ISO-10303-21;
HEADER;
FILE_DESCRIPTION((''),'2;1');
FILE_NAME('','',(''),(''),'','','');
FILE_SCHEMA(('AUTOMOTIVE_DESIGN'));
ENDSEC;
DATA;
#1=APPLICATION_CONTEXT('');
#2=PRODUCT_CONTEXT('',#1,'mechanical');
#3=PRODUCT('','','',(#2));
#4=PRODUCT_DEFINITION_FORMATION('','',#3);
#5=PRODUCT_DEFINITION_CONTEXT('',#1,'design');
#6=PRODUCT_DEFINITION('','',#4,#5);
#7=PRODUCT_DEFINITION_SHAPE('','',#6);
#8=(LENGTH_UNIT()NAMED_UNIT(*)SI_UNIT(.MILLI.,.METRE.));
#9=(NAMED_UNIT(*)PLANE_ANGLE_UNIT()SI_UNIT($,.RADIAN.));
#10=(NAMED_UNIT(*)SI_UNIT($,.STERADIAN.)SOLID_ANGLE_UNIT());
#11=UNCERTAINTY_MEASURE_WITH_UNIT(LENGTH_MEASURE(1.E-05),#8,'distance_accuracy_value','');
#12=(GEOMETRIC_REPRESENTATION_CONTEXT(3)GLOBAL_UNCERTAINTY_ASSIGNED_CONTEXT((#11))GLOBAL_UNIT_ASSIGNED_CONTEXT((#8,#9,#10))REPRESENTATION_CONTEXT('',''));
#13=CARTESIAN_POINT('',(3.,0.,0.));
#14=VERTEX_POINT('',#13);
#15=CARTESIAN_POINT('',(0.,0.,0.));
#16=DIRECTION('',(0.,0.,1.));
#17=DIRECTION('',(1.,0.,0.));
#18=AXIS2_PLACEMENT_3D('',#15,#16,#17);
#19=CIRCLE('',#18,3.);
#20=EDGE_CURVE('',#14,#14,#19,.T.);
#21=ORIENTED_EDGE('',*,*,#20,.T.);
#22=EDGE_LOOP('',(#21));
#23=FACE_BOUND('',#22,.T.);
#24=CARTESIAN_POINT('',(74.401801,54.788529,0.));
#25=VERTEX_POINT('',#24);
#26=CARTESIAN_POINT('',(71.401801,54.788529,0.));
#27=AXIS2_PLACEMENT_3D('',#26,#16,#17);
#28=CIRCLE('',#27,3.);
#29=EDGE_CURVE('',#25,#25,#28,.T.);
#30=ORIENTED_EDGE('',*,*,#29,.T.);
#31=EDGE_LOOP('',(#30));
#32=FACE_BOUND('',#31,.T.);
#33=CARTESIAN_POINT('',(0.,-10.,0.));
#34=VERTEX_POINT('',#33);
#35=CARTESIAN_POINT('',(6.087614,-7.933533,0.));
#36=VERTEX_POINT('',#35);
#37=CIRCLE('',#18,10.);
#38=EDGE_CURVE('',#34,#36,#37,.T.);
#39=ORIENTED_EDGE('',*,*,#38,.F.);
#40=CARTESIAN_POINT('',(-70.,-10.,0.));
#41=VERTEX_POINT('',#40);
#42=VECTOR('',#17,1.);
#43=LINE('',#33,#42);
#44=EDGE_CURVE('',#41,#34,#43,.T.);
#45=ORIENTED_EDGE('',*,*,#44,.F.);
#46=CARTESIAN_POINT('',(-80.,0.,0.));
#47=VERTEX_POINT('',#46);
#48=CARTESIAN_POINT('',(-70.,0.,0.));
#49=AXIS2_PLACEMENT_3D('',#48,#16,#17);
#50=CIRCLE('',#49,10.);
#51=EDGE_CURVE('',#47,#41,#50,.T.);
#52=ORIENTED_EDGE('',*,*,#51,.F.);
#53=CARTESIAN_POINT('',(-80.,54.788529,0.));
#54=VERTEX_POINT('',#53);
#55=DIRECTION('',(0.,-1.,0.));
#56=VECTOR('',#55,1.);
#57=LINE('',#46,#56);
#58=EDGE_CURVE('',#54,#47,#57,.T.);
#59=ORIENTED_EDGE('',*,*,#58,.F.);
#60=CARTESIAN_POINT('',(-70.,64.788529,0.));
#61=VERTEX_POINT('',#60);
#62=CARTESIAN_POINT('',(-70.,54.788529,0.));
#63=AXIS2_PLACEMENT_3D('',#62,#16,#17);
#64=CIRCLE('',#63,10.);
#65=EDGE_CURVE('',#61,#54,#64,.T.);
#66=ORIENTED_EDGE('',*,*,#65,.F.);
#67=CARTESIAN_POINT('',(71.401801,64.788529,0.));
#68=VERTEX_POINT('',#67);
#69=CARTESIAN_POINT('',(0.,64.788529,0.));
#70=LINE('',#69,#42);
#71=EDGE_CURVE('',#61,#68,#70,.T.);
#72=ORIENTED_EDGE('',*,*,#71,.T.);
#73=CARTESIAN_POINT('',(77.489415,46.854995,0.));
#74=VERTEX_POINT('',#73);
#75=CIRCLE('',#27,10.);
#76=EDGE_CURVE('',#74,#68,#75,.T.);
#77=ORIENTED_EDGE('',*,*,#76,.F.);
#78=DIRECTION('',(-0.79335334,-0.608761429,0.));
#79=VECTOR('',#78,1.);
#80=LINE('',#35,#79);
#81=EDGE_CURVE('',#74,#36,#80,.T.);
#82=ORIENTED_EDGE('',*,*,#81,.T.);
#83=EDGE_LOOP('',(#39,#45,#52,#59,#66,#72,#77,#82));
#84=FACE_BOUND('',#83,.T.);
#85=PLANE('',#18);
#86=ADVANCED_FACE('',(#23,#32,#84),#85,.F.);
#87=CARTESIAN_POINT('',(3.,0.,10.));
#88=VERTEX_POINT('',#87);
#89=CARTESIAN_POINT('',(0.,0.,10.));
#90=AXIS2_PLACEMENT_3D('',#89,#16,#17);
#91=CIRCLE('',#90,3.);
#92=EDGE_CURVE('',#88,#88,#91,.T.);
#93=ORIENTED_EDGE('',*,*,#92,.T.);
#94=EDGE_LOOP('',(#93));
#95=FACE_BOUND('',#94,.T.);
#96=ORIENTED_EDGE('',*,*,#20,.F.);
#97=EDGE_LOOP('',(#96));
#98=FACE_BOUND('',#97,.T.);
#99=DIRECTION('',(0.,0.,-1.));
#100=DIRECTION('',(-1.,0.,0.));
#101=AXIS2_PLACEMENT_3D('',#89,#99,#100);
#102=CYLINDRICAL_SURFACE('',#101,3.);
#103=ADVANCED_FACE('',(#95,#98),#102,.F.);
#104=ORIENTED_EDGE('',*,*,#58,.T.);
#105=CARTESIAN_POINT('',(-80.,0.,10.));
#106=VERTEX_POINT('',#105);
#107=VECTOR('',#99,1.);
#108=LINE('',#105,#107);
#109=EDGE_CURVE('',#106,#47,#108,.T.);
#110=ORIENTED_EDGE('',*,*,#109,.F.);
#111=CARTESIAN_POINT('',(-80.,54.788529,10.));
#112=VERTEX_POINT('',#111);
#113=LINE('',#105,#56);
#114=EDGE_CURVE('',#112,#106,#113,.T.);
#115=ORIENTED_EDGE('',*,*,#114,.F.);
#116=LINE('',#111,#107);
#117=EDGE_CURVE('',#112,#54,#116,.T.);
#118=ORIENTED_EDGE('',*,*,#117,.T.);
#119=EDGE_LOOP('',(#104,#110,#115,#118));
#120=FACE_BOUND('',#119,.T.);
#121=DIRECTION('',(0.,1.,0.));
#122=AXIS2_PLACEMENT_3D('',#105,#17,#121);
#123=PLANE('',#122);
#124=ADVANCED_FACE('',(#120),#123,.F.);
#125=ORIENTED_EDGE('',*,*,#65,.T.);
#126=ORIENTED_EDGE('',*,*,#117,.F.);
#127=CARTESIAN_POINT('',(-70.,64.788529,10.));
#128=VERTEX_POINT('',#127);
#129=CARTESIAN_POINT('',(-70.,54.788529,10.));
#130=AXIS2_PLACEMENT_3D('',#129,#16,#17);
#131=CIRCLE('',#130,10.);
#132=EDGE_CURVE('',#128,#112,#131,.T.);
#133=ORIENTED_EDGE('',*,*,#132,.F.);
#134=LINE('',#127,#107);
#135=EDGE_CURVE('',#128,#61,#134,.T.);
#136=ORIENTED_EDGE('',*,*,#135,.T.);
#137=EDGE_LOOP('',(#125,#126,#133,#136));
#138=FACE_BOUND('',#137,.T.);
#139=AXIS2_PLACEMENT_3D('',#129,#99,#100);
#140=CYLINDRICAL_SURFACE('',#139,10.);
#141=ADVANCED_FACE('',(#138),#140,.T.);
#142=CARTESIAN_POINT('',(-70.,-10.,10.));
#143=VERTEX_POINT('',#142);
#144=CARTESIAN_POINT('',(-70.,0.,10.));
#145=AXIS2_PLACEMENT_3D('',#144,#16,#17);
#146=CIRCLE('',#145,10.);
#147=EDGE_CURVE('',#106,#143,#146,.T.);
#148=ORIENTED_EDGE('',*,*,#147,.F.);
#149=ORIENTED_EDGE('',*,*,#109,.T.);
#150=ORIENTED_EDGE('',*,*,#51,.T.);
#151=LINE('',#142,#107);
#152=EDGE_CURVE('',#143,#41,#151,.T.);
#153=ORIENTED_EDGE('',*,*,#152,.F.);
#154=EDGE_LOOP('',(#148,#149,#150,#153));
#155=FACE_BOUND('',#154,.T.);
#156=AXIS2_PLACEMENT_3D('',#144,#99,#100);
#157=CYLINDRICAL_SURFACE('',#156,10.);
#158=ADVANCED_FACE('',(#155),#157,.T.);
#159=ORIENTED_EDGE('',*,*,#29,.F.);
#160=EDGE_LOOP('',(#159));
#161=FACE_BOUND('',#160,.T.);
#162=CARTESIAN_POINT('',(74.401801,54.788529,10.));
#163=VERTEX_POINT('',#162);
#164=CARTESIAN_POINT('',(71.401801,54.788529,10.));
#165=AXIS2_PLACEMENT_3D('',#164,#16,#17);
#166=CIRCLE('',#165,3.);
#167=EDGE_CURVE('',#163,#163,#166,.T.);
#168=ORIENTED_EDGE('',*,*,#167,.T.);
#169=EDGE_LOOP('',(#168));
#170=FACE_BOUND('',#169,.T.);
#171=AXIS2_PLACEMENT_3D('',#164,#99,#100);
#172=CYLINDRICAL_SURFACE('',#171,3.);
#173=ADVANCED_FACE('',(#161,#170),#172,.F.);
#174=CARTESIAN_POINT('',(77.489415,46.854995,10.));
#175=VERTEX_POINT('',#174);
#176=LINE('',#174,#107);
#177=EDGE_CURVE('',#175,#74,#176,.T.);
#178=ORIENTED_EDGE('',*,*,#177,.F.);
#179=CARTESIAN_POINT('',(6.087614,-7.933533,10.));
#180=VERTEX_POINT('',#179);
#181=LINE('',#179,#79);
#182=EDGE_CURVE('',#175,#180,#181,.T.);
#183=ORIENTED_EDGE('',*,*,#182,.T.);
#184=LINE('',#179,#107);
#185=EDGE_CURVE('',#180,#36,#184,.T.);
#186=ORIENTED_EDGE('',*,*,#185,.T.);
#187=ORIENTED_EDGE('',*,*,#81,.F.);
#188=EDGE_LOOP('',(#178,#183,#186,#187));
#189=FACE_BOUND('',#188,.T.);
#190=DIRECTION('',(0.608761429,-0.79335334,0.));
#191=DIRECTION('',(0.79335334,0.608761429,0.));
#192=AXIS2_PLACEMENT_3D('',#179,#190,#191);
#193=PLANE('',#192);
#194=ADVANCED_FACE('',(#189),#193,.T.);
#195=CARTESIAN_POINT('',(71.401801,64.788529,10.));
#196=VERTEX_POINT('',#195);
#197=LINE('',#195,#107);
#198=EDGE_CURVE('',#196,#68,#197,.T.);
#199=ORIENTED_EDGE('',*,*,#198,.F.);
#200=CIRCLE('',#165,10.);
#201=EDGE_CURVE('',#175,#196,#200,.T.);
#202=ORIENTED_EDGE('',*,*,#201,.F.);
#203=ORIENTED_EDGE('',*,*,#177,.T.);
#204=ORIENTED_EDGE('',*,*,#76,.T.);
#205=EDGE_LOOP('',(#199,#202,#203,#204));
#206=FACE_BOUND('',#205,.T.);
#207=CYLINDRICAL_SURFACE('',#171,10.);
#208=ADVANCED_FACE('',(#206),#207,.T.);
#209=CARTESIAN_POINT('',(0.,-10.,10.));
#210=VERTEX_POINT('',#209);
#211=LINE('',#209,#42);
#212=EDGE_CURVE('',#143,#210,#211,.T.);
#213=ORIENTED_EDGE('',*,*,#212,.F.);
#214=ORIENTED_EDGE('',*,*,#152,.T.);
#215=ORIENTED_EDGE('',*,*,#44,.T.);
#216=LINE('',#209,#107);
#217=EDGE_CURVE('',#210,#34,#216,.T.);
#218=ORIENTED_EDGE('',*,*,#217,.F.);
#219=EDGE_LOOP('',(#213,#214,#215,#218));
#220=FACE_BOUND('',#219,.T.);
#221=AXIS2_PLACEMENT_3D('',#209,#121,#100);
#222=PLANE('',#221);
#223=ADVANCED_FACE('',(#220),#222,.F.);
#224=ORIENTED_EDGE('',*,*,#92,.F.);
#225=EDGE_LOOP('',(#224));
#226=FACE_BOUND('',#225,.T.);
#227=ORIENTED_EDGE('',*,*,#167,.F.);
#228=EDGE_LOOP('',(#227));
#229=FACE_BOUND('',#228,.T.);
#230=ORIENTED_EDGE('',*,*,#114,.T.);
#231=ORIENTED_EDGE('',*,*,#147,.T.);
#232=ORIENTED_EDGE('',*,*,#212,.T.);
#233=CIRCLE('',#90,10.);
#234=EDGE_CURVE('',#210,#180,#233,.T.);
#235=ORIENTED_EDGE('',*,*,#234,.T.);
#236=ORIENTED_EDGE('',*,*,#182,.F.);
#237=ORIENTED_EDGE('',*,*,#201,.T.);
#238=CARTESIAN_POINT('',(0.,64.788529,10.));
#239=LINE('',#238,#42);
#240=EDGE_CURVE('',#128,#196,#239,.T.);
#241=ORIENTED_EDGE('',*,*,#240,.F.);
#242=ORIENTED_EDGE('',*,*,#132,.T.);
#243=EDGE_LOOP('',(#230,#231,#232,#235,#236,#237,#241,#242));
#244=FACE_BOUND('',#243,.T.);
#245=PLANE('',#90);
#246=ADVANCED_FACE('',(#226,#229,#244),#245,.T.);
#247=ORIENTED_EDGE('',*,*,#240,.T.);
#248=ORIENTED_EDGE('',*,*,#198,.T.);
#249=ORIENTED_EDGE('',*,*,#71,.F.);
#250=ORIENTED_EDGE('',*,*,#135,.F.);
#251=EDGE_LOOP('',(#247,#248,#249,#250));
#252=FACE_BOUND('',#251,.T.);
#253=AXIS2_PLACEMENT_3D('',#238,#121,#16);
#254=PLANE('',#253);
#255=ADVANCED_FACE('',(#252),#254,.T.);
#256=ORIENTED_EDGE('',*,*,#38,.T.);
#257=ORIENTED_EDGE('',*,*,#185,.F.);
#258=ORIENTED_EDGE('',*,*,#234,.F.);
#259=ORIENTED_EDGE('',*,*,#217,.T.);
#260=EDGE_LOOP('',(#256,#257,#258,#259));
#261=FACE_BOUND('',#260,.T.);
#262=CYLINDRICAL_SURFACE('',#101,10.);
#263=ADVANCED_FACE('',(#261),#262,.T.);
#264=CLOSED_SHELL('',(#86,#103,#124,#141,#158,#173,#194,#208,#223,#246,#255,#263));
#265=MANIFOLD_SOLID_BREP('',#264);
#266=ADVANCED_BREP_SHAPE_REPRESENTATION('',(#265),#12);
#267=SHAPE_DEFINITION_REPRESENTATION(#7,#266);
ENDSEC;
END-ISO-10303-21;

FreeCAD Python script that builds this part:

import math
import FreeCAD as App
import Part
import Sketcher

V = App.Vector
Q = App.Units.Quantity

doc = App.newDocument("Part")
body = doc.addObject("PartDesign::Body", "Body")

sketch1 = body.newObject("Sketcher::SketchObject", "Sketch")
sketch1.AttachmentSupport = (doc.getObject("XY_Plane"), [""])
sketch1.MapMode = "FlatFace"
sketch1.addGeometry(Part.LineSegment(V(71.4, 64.8, 0), V(-70, 64.8, 0)), False)
sketch1.addGeometry(Part.ArcOfCircle(Part.Circle(V(-70, 54.8, 0), V(0, 0, 1), 10), math.radians(90), math.radians(180)), False)
sketch1.addGeometry(Part.LineSegment(V(-80, 54.8, 0), V(-80, 0, 0)), False)
sketch1.addGeometry(Part.ArcOfCircle(Part.Circle(V(-70, 0, 0), V(0, 0, 1), 10), math.radians(180), math.radians(270)), False)
sketch1.addGeometry(Part.LineSegment(V(-70, -10, 0), V(0, -10, 0)), False)
sketch1.addGeometry(Part.ArcOfCircle(Part.Circle(V(0, 0, 0), V(0, 0, 1), 10), math.radians(-90), math.radians(-53)), False)
sketch1.addGeometry(Part.LineSegment(V(6.1, -7.9, 0), V(77.5, 46.9, 0)), False)
sketch1.addGeometry(Part.ArcOfCircle(Part.Circle(V(71.4, 54.8, 0), V(0, 0, 1), 10), math.radians(-53), math.radians(90)), False)
sketch1.addGeometry(Part.Circle(V(0, 0, 0), V(0, 0, 1), 3), False)
sketch1.addGeometry(Part.Circle(V(71.4, 54.8, 0), V(0, 0, 1), 3), False)
sketch1.addConstraint(Sketcher.Constraint("Tangent", 0, 2, 1, 1))
sketch1.addConstraint(Sketcher.Constraint("Tangent", 1, 2, 2, 1))
sketch1.addConstraint(Sketcher.Constraint("Tangent", 2, 2, 3, 1))
sketch1.addConstraint(Sketcher.Constraint("Tangent", 3, 2, 4, 1))
sketch1.addConstraint(Sketcher.Constraint("Tangent", 4, 2, 5, 1))
sketch1.addConstraint(Sketcher.Constraint("Tangent", 5, 2, 6, 1))
sketch1.addConstraint(Sketcher.Constraint("Tangent", 6, 2, 7, 1))
sketch1.addConstraint(Sketcher.Constraint("Tangent", 7, 2, 0, 1))
sketch1.addConstraint(Sketcher.Constraint("Horizontal", 0))
sketch1.addConstraint(Sketcher.Constraint("Vertical", 2))
sketch1.addConstraint(Sketcher.Constraint("Horizontal", 4))
sketch1.addConstraint(Sketcher.Constraint("Coincident", 5, 3, -1, 1))
sketch1.addConstraint(Sketcher.Constraint("Coincident", 8, 3, -1, 1))
sketch1.addConstraint(Sketcher.Constraint("Coincident", 9, 3, 7, 3))
sketch1.addConstraint(Sketcher.Constraint("Equal", 1, 3))
sketch1.addConstraint(Sketcher.Constraint("Equal", 3, 5))
sketch1.addConstraint(Sketcher.Constraint("Equal", 5, 7))
sketch1.addConstraint(Sketcher.Constraint("Equal", 8, 9))
sketch1.addConstraint(Sketcher.Constraint("Diameter", 8, Q("6 mm")))
sketch1.addConstraint(Sketcher.Constraint("Radius", 1, Q("10 mm")))
sketch1.addConstraint(Sketcher.Constraint("DistanceX", 4, 1, 4, 2, Q("70 mm")))
sketch1.addConstraint(Sketcher.Constraint("Distance", 6, Q("90 mm")))
sketch1.addConstraint(Sketcher.Constraint("Angle", 6, Q("37.5 deg")))
pad1 = body.newObject("PartDesign::Pad", "Pad")
pad1.Profile = sketch1
pad1.Length = 10

doc.recompute()
